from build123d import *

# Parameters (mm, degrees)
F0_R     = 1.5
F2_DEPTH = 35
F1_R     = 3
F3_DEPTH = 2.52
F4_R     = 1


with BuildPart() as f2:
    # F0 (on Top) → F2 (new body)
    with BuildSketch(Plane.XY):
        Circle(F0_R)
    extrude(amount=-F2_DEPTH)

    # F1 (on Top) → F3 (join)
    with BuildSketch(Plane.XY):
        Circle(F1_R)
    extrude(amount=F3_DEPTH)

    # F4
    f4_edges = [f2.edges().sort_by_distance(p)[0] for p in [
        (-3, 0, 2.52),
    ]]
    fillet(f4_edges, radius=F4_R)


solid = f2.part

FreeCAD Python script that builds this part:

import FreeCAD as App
import Part
import Sketcher
Q = App.Units.Quantity


def edges_at(feature, points):
    """Names of the edges that pass closest to the given points."""
    edges = feature.Shape.Edges
    near = lambda p: min(range(len(edges)), key=lambda i: edges[i].distToShape(Part.Vertex(*p))[0])
    return sorted({f"Edge{near(p) + 1}" for p in points})

doc = App.newDocument("Part")
body = doc.addObject("PartDesign::Body", "Body")

# Sketch on XY plane
sketch1 = doc.addObject("Sketcher::SketchObject", "Sketch")
body.addObject(sketch1)
sketch1.AttachmentSupport = (doc.XY_Plane, [""])
sketch1.MapMode = "FlatFace"
sketch1.addGeometry(Part.Circle(App.Vector(0, 0, 0), App.Vector(0, 0, 1), 1.5), False)
sketch1.addConstraint([
    Sketcher.Constraint("Coincident", 0, 3, -1, 1),
    Sketcher.Constraint("Diameter", 0, Q("3 mm")),
])
pad1 = doc.addObject("PartDesign::Pad", "Pad")
body.addObject(pad1)
pad1.Profile = sketch1
pad1.Length = 35
pad1.Reversed = True

# Sketch on XY plane
sketch2 = doc.addObject("Sketcher::SketchObject", "Sketch001")
body.addObject(sketch2)
sketch2.AttachmentSupport = (doc.XY_Plane, [""])
sketch2.MapMode = "FlatFace"
sketch2.addGeometry(Part.Circle(App.Vector(0, 0, 0), App.Vector(0, 0, 1), 3), False)
sketch2.addConstraint([
    Sketcher.Constraint("Coincident", 0, 3, -1, 1),
    Sketcher.Constraint("Diameter", 0, Q("6 mm")),
])
pad2 = doc.addObject("PartDesign::Pad", "Pad001")
body.addObject(pad2)
pad2.Profile = sketch2
pad2.Length = 2.52
doc.recompute()

fillet = doc.addObject("PartDesign::Fillet", "Fillet")
body.addObject(fillet)
fillet.Base = (pad2, edges_at(pad2, [(-3, 0, 2.52)]))
fillet.Radius = 1

doc.recompute()
